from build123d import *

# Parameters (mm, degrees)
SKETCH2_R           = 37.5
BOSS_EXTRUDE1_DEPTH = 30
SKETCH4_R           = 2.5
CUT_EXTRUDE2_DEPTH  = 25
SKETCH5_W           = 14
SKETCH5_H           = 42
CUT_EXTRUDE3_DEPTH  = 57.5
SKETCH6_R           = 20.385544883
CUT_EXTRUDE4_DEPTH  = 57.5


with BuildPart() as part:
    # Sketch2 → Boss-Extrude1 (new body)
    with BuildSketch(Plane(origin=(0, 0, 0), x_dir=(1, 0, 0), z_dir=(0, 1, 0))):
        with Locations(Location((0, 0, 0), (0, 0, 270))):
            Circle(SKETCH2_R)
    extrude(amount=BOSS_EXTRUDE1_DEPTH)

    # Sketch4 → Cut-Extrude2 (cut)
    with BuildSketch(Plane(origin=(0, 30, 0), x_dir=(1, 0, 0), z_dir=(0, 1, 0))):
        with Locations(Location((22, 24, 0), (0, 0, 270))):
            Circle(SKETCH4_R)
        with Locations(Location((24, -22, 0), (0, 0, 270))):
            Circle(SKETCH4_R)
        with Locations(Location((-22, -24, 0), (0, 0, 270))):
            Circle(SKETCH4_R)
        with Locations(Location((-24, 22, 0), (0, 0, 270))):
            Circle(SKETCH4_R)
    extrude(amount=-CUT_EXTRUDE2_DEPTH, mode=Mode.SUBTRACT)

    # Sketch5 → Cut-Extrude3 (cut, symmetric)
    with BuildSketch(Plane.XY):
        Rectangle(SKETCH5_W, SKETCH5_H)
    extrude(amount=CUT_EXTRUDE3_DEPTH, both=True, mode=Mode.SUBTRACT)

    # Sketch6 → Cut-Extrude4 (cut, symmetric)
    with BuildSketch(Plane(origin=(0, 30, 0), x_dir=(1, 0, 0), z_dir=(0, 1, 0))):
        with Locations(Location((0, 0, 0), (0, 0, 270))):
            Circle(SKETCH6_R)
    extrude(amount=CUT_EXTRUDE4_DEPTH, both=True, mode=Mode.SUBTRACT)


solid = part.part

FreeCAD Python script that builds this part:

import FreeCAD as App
import Part
import Sketcher
from FreeCAD import Vector
Q = App.Units.Quantity

doc = App.newDocument("Part")
body = doc.addObject("PartDesign::Body", "Body")

# Sketch on XZ plane
sketch1 = doc.addObject("Sketcher::SketchObject", "Sketch")
body.addObject(sketch1)
sketch1.AttachmentSupport = (doc.XZ_Plane, [""])
sketch1.MapMode = "FlatFace"
sketch1.addGeometry(Part.Circle(Vector(0, 0, 0), Vector(0, 0, 1), 38), False)
sketch1.addConstraint([
    Sketcher.Constraint("Coincident", 0, 3, -1, 1),
    Sketcher.Constraint("Diameter", 0, Q("75 mm")),
])
pad1 = doc.addObject("PartDesign::Pad", "Pad")
body.addObject(pad1)
pad1.Profile = sketch1
pad1.Length = 30
pad1.Reversed = True

# Sketch on XZ plane
sketch2 = doc.addObject("Sketcher::SketchObject", "Sketch001")
body.addObject(sketch2)
sketch2.AttachmentSupport = (doc.XZ_Plane, [""])
sketch2.MapMode = "FlatFace"
sketch2.AttachmentOffset = App.Placement(Vector(0, 0, -30), App.Rotation())
sketch2.addGeometry([
    Part.Circle(Vector(22, -24, 0), Vector(0, 0, 1), 2.5),
    Part.Circle(Vector(24, 22, 0), Vector(0, 0, 1), 2.5),
    Part.Circle(Vector(-22, 24, 0), Vector(0, 0, 1), 2.5),
    Part.Circle(Vector(-24, -22, 0), Vector(0, 0, 1), 2.5),
], False)
sketch2.addConstraint([
    Sketcher.Constraint("Equal", 0, 1),
    Sketcher.Constraint("Equal", 1, 2),
    Sketcher.Constraint("Equal", 2, 3),
    Sketcher.Constraint("Symmetric", 0, 3, 2, 3, -1, 1),
    Sketcher.Constraint("Symmetric", 1, 3, 3, 3, -1, 1),
    Sketcher.Constraint("Diameter", 0, Q("5 mm")),
    Sketcher.Constraint("DistanceX", -1, 1, 0, 3, Q("22 mm")),
    Sketcher.Constraint("DistanceY", 0, 3, -1, 1, Q("24 mm")),
    Sketcher.Constraint("DistanceX", -1, 1, 1, 3, Q("24 mm")),
    Sketcher.Constraint("DistanceY", -1, 1, 1, 3, Q("22 mm")),
])
pocket1 = doc.addObject("PartDesign::Pocket", "Pocket")
body.addObject(pocket1)
pocket1.Profile = sketch2
pocket1.Length = 25
pocket1.Reversed = True

# Sketch on XY plane
sketch3 = doc.addObject("Sketcher::SketchObject", "Sketch002")
body.addObject(sketch3)
sketch3.AttachmentSupport = (doc.XY_Plane, [""])
sketch3.MapMode = "FlatFace"
sketch3.addGeometry([
    Part.LineSegment(Vector(-7, 21, 0), Vector(-7, -21, 0)),
    Part.LineSegment(Vector(-7, -21, 0), Vector(7, -21, 0)),
    Part.LineSegment(Vector(7, -21, 0), Vector(7, 21, 0)),
    Part.LineSegment(Vector(7, 21, 0), Vector(-7, 21, 0)),
], False)
sketch3.addConstraint([
    Sketcher.Constraint("Coincident", 0, 2, 1, 1),
    Sketcher.Constraint("Coincident", 1, 2, 2, 1),
    Sketcher.Constraint("Coincident", 2, 2, 3, 1),
    Sketcher.Constraint("Coincident", 3, 2, 0, 1),
    Sketcher.Constraint("Vertical", 0),
    Sketcher.Constraint("Horizontal", 1),
    Sketcher.Constraint("Vertical", 2),
    Sketcher.Constraint("Horizontal", 3),
    Sketcher.Constraint("Symmetric", 0, 2, 2, 2, -1, 1),
    Sketcher.Constraint("DistanceX", 1, 1, 1, 2, Q("14 mm")),
    Sketcher.Constraint("DistanceY", 0, 2, 0, 1, Q("42 mm")),
])
pocket2 = doc.addObject("PartDesign::Pocket", "Pocket001")
body.addObject(pocket2)
pocket2.Profile = sketch3
pocket2.Length = 115
pocket2.Midplane = True

# Sketch on XZ plane
sketch4 = doc.addObject("Sketcher::SketchObject", "Sketch003")
body.addObject(sketch4)
sketch4.AttachmentSupport = (doc.XZ_Plane, [""])
sketch4.MapMode = "FlatFace"
sketch4.AttachmentOffset = App.Placement(Vector(0, 0, -30), App.Rotation())
sketch4.addGeometry(Part.Circle(Vector(0, 0, 0), Vector(0, 0, 1), 20), False)
sketch4.addConstraint([
    Sketcher.Constraint("Coincident", 0, 3, -1, 1),
    Sketcher.Constraint("Diameter", 0, Q("40.77109 mm")),
])
pocket3 = doc.addObject("PartDesign::Pocket", "Pocket002")
body.addObject(pocket3)
pocket3.Profile = sketch4
pocket3.Length = 115
pocket3.Midplane = True

doc.recompute()
